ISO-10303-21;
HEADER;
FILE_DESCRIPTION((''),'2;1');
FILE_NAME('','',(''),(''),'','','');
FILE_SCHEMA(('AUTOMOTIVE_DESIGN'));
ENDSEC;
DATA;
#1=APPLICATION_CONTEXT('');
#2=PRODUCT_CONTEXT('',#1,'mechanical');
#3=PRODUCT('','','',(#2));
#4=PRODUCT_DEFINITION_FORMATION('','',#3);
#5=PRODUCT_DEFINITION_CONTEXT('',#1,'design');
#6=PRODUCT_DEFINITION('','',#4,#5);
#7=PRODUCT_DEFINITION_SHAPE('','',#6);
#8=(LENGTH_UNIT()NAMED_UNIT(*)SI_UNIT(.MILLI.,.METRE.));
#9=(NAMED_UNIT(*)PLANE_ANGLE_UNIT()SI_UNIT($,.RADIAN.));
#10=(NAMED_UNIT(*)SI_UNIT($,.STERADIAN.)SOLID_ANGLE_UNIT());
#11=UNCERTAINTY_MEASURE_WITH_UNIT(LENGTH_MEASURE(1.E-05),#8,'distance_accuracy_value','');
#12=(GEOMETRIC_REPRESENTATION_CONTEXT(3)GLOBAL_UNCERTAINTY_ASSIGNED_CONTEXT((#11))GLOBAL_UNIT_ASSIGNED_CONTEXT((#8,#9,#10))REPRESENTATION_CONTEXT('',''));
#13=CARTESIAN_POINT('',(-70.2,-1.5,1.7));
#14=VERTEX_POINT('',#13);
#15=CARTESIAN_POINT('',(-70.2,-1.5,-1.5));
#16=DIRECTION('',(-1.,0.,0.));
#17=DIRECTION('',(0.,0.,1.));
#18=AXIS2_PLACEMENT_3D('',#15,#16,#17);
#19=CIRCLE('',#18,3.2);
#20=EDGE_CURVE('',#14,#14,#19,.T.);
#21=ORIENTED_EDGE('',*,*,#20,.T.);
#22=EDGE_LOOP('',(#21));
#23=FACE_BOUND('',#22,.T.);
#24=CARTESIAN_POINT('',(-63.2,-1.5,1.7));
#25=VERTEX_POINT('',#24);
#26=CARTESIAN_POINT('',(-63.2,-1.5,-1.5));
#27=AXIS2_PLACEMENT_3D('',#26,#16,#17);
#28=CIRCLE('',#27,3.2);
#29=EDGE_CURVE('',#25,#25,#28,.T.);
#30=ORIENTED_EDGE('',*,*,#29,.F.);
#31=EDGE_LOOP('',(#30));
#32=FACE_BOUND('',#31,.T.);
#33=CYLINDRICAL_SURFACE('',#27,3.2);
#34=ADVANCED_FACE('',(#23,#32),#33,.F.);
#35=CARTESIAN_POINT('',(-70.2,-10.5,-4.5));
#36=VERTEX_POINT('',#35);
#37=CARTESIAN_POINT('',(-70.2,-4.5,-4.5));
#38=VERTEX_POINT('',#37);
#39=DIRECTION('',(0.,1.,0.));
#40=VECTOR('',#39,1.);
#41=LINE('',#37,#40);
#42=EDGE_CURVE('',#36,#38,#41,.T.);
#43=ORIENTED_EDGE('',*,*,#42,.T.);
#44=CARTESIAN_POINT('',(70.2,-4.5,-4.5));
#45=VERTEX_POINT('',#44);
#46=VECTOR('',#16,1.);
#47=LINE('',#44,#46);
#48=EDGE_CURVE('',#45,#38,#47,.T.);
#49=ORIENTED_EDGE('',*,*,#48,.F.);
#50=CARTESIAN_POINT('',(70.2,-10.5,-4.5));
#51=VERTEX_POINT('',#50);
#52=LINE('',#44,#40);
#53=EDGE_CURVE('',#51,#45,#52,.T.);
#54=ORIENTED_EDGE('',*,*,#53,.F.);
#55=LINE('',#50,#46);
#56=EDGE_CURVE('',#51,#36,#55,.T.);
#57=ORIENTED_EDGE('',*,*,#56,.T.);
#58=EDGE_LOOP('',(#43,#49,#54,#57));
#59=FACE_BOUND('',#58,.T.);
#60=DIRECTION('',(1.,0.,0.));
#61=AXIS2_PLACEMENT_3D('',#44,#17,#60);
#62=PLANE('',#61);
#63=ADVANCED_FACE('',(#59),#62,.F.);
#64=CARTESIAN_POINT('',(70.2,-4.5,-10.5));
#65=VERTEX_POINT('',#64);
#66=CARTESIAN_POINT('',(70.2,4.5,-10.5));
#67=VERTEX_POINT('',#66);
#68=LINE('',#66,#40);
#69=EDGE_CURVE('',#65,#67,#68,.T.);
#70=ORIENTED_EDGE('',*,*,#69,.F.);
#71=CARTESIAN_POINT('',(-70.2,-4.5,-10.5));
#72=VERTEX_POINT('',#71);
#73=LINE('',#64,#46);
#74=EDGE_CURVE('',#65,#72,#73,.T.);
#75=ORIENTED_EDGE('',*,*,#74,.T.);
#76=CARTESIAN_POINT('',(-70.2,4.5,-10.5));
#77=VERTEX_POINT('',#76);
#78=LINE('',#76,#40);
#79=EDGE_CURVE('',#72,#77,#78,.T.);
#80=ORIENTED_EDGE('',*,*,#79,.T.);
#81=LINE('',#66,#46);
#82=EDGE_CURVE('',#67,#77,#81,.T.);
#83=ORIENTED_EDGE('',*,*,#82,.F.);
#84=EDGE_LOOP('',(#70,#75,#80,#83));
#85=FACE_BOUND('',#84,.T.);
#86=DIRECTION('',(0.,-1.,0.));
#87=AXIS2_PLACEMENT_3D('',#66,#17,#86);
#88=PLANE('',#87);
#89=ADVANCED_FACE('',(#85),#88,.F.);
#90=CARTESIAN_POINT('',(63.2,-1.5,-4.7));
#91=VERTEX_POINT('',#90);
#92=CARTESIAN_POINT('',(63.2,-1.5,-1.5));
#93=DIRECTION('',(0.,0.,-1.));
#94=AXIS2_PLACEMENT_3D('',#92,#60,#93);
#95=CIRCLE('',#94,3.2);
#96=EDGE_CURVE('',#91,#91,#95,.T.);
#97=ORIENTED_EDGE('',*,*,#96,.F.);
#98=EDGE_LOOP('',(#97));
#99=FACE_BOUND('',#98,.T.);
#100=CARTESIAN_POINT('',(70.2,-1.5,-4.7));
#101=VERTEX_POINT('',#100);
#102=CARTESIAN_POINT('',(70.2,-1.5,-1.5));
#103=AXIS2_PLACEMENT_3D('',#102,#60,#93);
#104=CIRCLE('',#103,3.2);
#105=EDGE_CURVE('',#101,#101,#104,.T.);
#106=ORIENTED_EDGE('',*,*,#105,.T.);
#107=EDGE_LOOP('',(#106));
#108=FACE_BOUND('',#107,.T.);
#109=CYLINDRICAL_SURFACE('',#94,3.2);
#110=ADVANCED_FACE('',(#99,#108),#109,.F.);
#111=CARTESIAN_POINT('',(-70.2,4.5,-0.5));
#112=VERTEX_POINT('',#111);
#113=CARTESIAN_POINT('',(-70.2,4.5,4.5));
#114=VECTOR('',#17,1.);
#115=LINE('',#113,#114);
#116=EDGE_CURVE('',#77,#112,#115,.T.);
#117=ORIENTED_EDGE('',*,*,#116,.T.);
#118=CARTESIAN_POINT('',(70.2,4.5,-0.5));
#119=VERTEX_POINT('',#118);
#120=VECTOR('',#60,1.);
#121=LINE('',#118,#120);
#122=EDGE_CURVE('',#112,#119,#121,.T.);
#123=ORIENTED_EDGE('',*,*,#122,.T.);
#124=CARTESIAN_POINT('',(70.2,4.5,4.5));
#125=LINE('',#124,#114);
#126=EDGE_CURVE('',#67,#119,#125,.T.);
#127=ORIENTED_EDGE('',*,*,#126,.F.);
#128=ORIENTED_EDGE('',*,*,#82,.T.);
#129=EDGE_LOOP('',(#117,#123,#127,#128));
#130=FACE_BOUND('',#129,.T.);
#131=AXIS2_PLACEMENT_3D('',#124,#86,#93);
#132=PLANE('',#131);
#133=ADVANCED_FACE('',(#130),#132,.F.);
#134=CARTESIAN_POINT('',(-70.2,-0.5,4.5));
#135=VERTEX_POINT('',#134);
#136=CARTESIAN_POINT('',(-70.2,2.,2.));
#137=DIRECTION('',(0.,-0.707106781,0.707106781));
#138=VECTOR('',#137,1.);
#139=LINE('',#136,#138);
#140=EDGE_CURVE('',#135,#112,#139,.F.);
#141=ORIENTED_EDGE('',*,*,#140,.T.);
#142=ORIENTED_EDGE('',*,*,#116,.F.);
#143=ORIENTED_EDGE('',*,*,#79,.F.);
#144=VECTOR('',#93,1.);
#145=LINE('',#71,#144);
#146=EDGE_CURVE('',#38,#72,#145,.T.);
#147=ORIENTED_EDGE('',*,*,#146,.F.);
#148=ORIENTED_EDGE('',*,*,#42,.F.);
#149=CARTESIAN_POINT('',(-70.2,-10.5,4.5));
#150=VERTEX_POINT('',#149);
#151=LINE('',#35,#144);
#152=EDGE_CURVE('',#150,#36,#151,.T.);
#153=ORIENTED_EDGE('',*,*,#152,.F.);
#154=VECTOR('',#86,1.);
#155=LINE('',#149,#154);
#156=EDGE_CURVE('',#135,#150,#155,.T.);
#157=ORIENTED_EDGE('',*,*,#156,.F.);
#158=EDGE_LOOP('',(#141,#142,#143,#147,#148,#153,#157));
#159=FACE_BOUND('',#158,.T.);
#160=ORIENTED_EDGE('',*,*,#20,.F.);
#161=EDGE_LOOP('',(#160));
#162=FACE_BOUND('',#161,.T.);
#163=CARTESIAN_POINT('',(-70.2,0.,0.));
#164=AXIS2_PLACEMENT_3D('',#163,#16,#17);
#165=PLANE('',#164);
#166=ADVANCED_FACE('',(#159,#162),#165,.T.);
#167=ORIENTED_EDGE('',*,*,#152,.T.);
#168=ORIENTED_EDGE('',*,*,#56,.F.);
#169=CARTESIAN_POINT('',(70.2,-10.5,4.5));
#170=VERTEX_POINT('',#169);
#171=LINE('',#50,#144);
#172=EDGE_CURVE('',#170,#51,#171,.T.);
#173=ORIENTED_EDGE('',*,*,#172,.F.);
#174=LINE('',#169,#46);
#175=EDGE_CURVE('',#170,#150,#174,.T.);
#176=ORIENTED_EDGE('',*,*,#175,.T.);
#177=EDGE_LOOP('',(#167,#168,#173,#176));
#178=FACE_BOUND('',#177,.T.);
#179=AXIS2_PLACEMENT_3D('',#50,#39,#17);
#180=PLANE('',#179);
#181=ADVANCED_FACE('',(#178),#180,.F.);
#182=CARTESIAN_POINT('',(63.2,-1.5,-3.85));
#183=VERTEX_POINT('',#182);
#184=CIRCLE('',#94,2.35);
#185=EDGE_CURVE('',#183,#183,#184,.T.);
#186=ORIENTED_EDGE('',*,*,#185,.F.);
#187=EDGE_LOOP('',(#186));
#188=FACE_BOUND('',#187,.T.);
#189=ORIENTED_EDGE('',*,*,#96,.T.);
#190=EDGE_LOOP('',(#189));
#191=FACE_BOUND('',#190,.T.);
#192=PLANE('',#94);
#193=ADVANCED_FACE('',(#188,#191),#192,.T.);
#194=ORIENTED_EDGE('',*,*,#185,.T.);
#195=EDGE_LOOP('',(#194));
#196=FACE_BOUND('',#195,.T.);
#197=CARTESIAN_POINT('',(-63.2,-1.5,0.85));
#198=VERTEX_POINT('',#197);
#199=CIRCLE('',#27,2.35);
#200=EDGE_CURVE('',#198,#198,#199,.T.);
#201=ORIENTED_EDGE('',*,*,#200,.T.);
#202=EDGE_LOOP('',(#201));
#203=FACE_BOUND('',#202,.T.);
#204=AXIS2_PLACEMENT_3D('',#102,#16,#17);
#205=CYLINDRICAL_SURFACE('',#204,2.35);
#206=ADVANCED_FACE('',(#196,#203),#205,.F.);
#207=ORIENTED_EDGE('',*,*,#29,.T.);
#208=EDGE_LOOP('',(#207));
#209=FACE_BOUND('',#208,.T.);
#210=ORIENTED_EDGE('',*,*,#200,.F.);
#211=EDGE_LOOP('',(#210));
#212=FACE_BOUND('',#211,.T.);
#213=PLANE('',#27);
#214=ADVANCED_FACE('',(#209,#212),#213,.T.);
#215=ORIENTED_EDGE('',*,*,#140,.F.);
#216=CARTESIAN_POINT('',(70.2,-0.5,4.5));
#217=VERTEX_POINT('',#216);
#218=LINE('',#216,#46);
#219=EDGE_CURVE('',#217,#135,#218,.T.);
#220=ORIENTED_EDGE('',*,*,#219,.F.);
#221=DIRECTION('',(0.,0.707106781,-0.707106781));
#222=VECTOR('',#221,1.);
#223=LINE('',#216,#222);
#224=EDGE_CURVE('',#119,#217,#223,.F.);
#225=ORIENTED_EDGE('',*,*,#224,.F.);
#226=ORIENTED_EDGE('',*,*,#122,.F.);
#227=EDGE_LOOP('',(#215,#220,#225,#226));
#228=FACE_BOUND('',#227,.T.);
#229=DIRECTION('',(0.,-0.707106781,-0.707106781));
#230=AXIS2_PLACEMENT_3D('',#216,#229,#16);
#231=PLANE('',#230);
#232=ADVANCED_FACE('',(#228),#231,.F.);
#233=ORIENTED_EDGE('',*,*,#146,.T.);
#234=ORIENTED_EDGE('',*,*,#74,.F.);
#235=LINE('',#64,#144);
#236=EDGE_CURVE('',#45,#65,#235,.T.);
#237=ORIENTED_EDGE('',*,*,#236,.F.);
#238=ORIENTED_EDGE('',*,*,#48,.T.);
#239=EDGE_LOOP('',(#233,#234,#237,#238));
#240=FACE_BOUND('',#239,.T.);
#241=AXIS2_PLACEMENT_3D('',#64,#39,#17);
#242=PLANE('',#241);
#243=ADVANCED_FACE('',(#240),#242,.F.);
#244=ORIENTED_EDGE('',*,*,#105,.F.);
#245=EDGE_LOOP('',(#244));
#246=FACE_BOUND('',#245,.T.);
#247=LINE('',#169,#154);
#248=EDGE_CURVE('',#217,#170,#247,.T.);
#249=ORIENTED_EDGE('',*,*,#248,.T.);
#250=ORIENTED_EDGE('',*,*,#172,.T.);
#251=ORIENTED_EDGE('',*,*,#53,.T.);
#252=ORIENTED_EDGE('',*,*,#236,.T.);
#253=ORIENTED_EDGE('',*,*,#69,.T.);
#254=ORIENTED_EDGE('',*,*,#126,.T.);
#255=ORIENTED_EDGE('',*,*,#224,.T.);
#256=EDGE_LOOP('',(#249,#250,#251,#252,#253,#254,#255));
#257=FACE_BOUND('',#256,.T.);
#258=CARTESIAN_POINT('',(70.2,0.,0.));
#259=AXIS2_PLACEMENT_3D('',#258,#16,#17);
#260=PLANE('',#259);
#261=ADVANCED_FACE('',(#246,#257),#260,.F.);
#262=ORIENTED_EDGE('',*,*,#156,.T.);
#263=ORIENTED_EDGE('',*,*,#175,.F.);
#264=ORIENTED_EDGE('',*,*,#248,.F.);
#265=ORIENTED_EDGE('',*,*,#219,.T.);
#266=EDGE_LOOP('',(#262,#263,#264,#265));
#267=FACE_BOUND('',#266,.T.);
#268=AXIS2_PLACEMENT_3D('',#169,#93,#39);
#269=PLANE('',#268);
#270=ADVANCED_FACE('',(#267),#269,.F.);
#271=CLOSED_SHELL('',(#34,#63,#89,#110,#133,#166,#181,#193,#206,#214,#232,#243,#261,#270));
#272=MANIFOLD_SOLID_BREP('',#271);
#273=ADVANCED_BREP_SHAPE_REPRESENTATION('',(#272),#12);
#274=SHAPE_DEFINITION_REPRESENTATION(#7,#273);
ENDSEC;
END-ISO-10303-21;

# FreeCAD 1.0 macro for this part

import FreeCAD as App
import Part
import Sketcher

V = App.Vector
Q = App.Units.Quantity


def edges_at(feature, points):
    """Names of the edges that pass closest to the given points."""
    edges = feature.Shape.Edges
    near = lambda p: min(range(len(edges)), key=lambda i: edges[i].distToShape(Part.Vertex(*p))[0])
    return sorted({f"Edge{near(p) + 1}" for p in points})


def add_polygon(sketch, points):
    """Adds a closed chain of lines whose ends are joined by coincident constraints."""
    first, n = sketch.GeometryCount, len(points)
    for a, b in zip(points, points[1:] + points[:1]):
        sketch.addGeometry(Part.LineSegment(App.Vector(*a, 0), App.Vector(*b, 0)), False)
    for i in range(n):
        sketch.addConstraint(Sketcher.Constraint("Coincident", first + i, 2, first + (i + 1) % n, 1))

doc = App.newDocument("Part")
body = doc.addObject("PartDesign::Body", "Body")

# Sketch on YZ plane
sketch1 = body.newObject("Sketcher::SketchObject", "Sketch")
sketch1.AttachmentSupport = (doc.getObject("YZ_Plane"), [""])
sketch1.MapMode = "FlatFace"
add_polygon(sketch1, [(4.5, 4.5), (-10.5, 4.5), (-10.5, -4.5), (-4.5, -4.5), (-4.5, -10.5), (4.5, -10.5)])  # lines 0-5
sketch1.addGeometry(Part.Circle(V(-1.5, -1.5, 0), V(0, 0, 1), 2.4), False)  # 6
sketch1.addConstraint([
    Sketcher.Constraint("Horizontal", 0),
    Sketcher.Constraint("Vertical", 1),
    Sketcher.Constraint("Horizontal", 2),
    Sketcher.Constraint("Vertical", 3),
    Sketcher.Constraint("Horizontal", 4),
    Sketcher.Constraint("Vertical", 5),
    Sketcher.Constraint("Symmetric", 2, 2, 5, 2, -1, 1),
    Sketcher.Constraint("Equal", 4, 1),
    Sketcher.Constraint("Equal", 2, 3),
    Sketcher.Constraint("Diameter", 6, Q("4.7 mm")),
    Sketcher.Constraint("DistanceX", 0, 2, 0, 1, Q("15 mm")),
    Sketcher.Constraint("DistanceX", 2, 1, 2, 2, Q("6 mm")),
    Sketcher.Constraint("DistanceX", 0, 2, 6, 3, Q("9 mm")),
    Sketcher.Constraint("DistanceY", 6, 3, 0, 2, Q("6 mm")),
])
pad1 = body.newObject("PartDesign::Pad", "Pad")
pad1.Profile = sketch1
pad1.Length = 140.4
pad1.Midplane = True
doc.recompute()

chamfer = body.newObject("PartDesign::Chamfer", "Chamfer")
chamfer.Base = (pad1, edges_at(pad1, [(0, 4.5, 4.5)]))
chamfer.Size = 5

# Sketch on YZ plane
sketch2 = body.newObject("Sketcher::SketchObject", "Sketch001")
sketch2.AttachmentSupport = (doc.getObject("YZ_Plane"), [""])
sketch2.MapMode = "FlatFace"
sketch2.AttachmentOffset = App.Placement(V(0, 0, -70.2), App.Rotation())
sketch2.addGeometry([
    Part.Circle(V(-1.5, -1.5, 0), V(0, 0, 1), 3.2),
    Part.Circle(V(-1.5, -1.5, 0), V(0, 0, 1), 2.4),
], False)
sketch2.addConstraint([
    Sketcher.Constraint("Coincident", 1, 3, 0, 3),
    Sketcher.Constraint("Diameter", 0, Q("6.4 mm")),
    Sketcher.Constraint("Diameter", 1, Q("4.7 mm")),
    Sketcher.Constraint("DistanceX", 0, 3, -1, 1, Q("1.5 mm")),
    Sketcher.Constraint("DistanceY", 0, 3, -1, 1, Q("1.5 mm")),
])
pocket1 = body.newObject("PartDesign::Pocket", "Pocket")
pocket1.Profile = sketch2
pocket1.Length = 7
pocket1.Reversed = True

# Sketch on YZ plane
sketch3 = body.newObject("Sketcher::SketchObject", "Sketch002")
sketch3.AttachmentSupport = (doc.getObject("YZ_Plane"), [""])
sketch3.MapMode = "FlatFace"
sketch3.AttachmentOffset = App.Placement(V(0, 0, 63.2), App.Rotation())
sketch3.addGeometry([
    Part.Circle(V(-1.5, -1.5, 0), V(0, 0, 1), 3.2),
    Part.Circle(V(-1.5, -1.5, 0), V(0, 0, 1), 2.4),
], False)
sketch3.addConstraint([
    Sketcher.Constraint("Coincident", 1, 3, 0, 3),
    Sketcher.Constraint("Diameter", 0, Q("6.4 mm")),
    Sketcher.Constraint("Diameter", 1, Q("4.7 mm")),
    Sketcher.Constraint("DistanceX", 0, 3, -1, 1, Q("1.5 mm")),
    Sketcher.Constraint("DistanceY", 0, 3, -1, 1, Q("1.5 mm")),
])
pocket2 = body.newObject("PartDesign::Pocket", "Pocket001")
pocket2.Profile = sketch3
pocket2.Length = 7
pocket2.Reversed = True

doc.recompute()
